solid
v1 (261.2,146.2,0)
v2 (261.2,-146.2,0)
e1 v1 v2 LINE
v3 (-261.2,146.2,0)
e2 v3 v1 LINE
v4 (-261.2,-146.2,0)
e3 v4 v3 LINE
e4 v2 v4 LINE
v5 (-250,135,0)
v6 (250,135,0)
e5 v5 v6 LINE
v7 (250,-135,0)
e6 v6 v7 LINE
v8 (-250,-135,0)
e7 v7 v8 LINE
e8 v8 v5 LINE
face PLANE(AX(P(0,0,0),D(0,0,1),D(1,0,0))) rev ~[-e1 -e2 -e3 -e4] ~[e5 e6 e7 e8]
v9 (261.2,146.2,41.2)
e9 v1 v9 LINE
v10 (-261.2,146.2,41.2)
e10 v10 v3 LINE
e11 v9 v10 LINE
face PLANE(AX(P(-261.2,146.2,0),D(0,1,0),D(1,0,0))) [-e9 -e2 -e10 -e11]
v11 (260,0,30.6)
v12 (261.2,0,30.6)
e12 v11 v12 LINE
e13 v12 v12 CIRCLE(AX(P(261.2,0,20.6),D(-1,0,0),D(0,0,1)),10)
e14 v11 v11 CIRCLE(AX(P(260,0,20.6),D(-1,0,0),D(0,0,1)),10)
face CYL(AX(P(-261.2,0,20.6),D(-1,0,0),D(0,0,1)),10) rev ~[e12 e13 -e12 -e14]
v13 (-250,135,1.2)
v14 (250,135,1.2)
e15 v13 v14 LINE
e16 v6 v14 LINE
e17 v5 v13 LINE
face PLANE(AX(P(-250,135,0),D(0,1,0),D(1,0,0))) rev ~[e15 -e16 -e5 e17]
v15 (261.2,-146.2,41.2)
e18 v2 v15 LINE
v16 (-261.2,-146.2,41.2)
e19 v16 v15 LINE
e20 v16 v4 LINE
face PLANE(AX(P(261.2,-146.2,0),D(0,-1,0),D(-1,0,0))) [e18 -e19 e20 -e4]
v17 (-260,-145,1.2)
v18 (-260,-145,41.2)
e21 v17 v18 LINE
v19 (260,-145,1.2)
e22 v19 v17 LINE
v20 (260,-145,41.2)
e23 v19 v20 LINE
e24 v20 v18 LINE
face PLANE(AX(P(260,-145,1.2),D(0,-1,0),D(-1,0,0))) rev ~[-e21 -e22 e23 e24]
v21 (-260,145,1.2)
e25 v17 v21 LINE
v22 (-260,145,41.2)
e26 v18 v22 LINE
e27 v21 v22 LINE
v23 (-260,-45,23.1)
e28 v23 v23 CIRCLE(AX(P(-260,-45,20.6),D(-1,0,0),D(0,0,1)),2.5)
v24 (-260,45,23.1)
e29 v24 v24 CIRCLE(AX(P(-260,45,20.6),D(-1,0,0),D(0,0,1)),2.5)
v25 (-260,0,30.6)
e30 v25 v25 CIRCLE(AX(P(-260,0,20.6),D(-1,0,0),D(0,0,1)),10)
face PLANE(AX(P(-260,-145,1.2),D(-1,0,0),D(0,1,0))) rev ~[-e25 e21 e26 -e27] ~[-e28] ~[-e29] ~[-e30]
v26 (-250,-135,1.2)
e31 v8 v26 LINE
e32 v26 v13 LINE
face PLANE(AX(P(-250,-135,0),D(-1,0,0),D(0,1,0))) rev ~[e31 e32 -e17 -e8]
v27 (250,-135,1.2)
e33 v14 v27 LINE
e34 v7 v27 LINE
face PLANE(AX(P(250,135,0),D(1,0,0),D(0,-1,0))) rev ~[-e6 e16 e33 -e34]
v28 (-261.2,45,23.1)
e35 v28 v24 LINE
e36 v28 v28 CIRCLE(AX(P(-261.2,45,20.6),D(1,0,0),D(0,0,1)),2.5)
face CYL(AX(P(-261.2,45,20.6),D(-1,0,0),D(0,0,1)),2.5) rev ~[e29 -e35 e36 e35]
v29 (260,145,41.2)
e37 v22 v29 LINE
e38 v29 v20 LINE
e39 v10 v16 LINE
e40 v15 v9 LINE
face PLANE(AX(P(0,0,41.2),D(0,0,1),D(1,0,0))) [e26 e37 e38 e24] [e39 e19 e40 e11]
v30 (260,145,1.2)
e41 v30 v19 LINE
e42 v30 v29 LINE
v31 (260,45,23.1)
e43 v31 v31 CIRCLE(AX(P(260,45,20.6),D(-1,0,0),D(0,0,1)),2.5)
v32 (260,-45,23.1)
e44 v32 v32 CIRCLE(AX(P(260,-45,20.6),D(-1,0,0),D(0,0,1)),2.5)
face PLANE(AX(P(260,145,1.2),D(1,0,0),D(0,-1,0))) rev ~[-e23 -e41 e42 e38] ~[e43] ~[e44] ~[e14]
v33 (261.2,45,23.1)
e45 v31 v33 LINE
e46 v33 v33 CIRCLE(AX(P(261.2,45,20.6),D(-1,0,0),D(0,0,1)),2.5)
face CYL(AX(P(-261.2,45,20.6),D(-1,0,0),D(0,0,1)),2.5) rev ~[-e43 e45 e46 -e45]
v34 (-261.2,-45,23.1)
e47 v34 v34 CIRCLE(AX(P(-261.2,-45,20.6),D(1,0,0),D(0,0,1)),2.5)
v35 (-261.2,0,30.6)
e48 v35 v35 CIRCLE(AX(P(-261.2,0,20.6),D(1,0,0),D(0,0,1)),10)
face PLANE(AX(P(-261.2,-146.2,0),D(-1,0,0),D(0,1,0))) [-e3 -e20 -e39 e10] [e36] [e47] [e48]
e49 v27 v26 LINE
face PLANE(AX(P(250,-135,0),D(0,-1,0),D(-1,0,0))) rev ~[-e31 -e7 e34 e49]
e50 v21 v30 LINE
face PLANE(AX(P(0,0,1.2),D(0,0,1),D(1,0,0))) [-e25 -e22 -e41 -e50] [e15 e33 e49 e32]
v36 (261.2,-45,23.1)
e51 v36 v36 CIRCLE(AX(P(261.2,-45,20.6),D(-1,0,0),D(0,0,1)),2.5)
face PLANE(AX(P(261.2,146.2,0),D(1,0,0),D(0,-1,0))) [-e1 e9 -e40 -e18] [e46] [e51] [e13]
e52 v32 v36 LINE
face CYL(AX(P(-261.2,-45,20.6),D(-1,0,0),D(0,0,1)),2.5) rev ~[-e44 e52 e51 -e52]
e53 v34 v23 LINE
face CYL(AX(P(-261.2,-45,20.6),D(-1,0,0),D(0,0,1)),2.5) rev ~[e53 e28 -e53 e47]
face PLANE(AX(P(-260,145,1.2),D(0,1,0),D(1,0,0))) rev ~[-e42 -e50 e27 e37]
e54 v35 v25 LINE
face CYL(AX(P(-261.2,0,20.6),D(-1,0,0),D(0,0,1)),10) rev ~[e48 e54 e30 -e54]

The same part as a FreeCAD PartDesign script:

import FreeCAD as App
import Part
import Sketcher

doc = App.newDocument("Part")
params = doc.addObject("Spreadsheet::Sheet", "Params")
for row, (alias, value) in enumerate([
    ("sketch1_width", "500 mm"),
    ("sketch1_height", "270 mm"),
    ("sketch1_width2", "522.4 mm"),
    ("sketch1_height2", "292.4 mm"),
    ("pad1_length", "1.2 mm"),
    ("sketch2_width", "520 mm"),
    ("sketch2_height", "290 mm"),
    ("pad2_length", "40 mm"),
    ("sketch3_diameter", "20 mm"),
    ("pocket1_length", "1000 mm"),
    ("sketch4_diameter", "5 mm"),
    ("pocket2_length", "1000 mm"),
], start=1):
    params.set(f"A{row}", alias)
    params.set(f"B{row}", "=" + value)
    params.setAlias(f"B{row}", alias)

body = doc.addObject("PartDesign::Body", "Body")

# Sketch on XY plane
sketch1 = doc.addObject("Sketcher::SketchObject", "Sketch")
body.addObject(sketch1)
sketch1.AttachmentSupport = (doc.XY_Plane, [""])
sketch1.MapMode = "FlatFace"
sketch1.addGeometry([
    Part.LineSegment(App.Vector(-261, -146, 0), App.Vector(261, -146, 0)),  # 0
    Part.LineSegment(App.Vector(261, -146, 0), App.Vector(261, 146, 0)),  # 1
    Part.LineSegment(App.Vector(261, 146, 0), App.Vector(-261, 146, 0)),  # 2
    Part.LineSegment(App.Vector(-261, 146, 0), App.Vector(-261, -146, 0)),  # 3
    Part.LineSegment(App.Vector(250, 135, 0), App.Vector(250, -135, 0)),  # 4
    Part.LineSegment(App.Vector(250, -135, 0), App.Vector(-250, -135, 0)),  # 5
    Part.LineSegment(App.Vector(-250, -135, 0), App.Vector(-250, 135, 0)),  # 6
    Part.LineSegment(App.Vector(-250, 135, 0), App.Vector(250, 135, 0)),  # 7
], False)
sketch1.addConstraint([
    Sketcher.Constraint("Coincident", 0, 2, 1, 1),
    Sketcher.Constraint("Coincident", 1, 2, 2, 1),
    Sketcher.Constraint("Coincident", 2, 2, 3, 1),
    Sketcher.Constraint("Coincident", 3, 2, 0, 1),
    Sketcher.Constraint("Coincident", 4, 2, 5, 1),
    Sketcher.Constraint("Coincident", 5, 2, 6, 1),
    Sketcher.Constraint("Coincident", 6, 2, 7, 1),
    Sketcher.Constraint("Coincident", 7, 2, 4, 1),
    Sketcher.Constraint("Horizontal", 0),
    Sketcher.Constraint("Vertical", 1),
    Sketcher.Constraint("Horizontal", 2),
    Sketcher.Constraint("Vertical", 3),
    Sketcher.Constraint("Vertical", 4),
    Sketcher.Constraint("Horizontal", 5),
    Sketcher.Constraint("Vertical", 6),
    Sketcher.Constraint("Horizontal", 7),
    Sketcher.Constraint("Symmetric", 0, 2, 2, 2, -1, 1),
    Sketcher.Constraint("Symmetric", 4, 2, 6, 2, -1, 1),
    Sketcher.Constraint("DistanceX", 5, 2, 5, 1, 500.0),
    Sketcher.Constraint("DistanceY", 4, 2, 4, 1, 270.0),
    Sketcher.Constraint("DistanceX", 0, 1, 0, 2, 522.4),
    Sketcher.Constraint("DistanceY", 1, 1, 1, 2, 292.4),
])
sketch1.setExpression("Constraints[18]", "Params.sketch1_width")
sketch1.setExpression("Constraints[19]", "Params.sketch1_height")
sketch1.setExpression("Constraints[20]", "Params.sketch1_width2")
sketch1.setExpression("Constraints[21]", "Params.sketch1_height2")
pad1 = doc.addObject("PartDesign::Pad", "Pad")
body.addObject(pad1)
pad1.Profile = sketch1
pad1.setExpression("Length", "Params.pad1_length")

# Sketch on XY plane
sketch2 = doc.addObject("Sketcher::SketchObject", "Sketch001")
body.addObject(sketch2)
sketch2.AttachmentSupport = (doc.XY_Plane, [""])
sketch2.MapMode = "FlatFace"
sketch2.AttachmentOffset = App.Placement(App.Vector(0, 0, 1.2), App.Rotation())
sketch2.addGeometry([
    Part.LineSegment(App.Vector(261, -146, 0), App.Vector(261, 146, 0)),  # 0
    Part.LineSegment(App.Vector(261, 146, 0), App.Vector(-261, 146, 0)),  # 1
    Part.LineSegment(App.Vector(-261, 146, 0), App.Vector(-261, -146, 0)),  # 2
    Part.LineSegment(App.Vector(-261, -146, 0), App.Vector(261, -146, 0)),  # 3
    Part.LineSegment(App.Vector(-260, -145, 0), App.Vector(-260, 145, 0)),  # 4
    Part.LineSegment(App.Vector(-260, 145, 0), App.Vector(260, 145, 0)),  # 5
    Part.LineSegment(App.Vector(260, 145, 0), App.Vector(260, -145, 0)),  # 6
    Part.LineSegment(App.Vector(260, -145, 0), App.Vector(-260, -145, 0)),  # 7
], False)
sketch2.addConstraint([
    Sketcher.Constraint("Coincident", 0, 2, 1, 1),
    Sketcher.Constraint("Coincident", 1, 2, 2, 1),
    Sketcher.Constraint("Coincident", 2, 2, 3, 1),
    Sketcher.Constraint("Coincident", 3, 2, 0, 1),
    Sketcher.Constraint("Coincident", 4, 2, 5, 1),
    Sketcher.Constraint("Coincident", 5, 2, 6, 1),
    Sketcher.Constraint("Coincident", 6, 2, 7, 1),
    Sketcher.Constraint("Coincident", 7, 2, 4, 1),
    Sketcher.Constraint("Vertical", 0),
    Sketcher.Constraint("Horizontal", 1),
    Sketcher.Constraint("Vertical", 2),
    Sketcher.Constraint("Horizontal", 3),
    Sketcher.Constraint("Vertical", 4),
    Sketcher.Constraint("Horizontal", 5),
    Sketcher.Constraint("Vertical", 6),
    Sketcher.Constraint("Horizontal", 7),
    Sketcher.Constraint("Symmetric", 0, 2, 2, 2, -1, 1),
    Sketcher.Constraint("Symmetric", 4, 2, 6, 2, -1, 1),
    Sketcher.Constraint("DistanceX", 1, 2, 4, 2, 1.2),
    Sketcher.Constraint("DistanceY", 4, 2, 1, 2, 1.2),
    Sketcher.Constraint("DistanceX", 5, 1, 5, 2, 520.0),
    Sketcher.Constraint("DistanceY", 4, 1, 4, 2, 290.0),
])
sketch2.setExpression("Constraints[20]", "Params.sketch2_width")
sketch2.setExpression("Constraints[21]", "Params.sketch2_height")
pad2 = doc.addObject("PartDesign::Pad", "Pad001")
body.addObject(pad2)
pad2.Profile = sketch2
pad2.setExpression("Length", "Params.pad2_length")

# Sketch on YZ plane
sketch3 = doc.addObject("Sketcher::SketchObject", "Sketch002")
body.addObject(sketch3)
sketch3.AttachmentSupport = (doc.YZ_Plane, [""])
sketch3.MapMode = "FlatFace"
sketch3.AttachmentOffset = App.Placement(App.Vector(0, 0, -261.2), App.Rotation())
sketch3.addGeometry(Part.Circle(App.Vector(0, 21, 0), App.Vector(0, 0, 1), 10), False)
sketch3.addConstraint([
    Sketcher.Constraint("PointOnObject", 0, 3, -2),
    Sketcher.Constraint("Diameter", 0, 20.0),
    Sketcher.Constraint("DistanceY", -1, 1, 0, 3, 20.6),
])
sketch3.setExpression("Constraints[1]", "Params.sketch3_diameter")
pocket1 = doc.addObject("PartDesign::Pocket", "Pocket")
body.addObject(pocket1)
pocket1.Profile = sketch3
pocket1.setExpression("Length", "Params.pocket1_length")
pocket1.Reversed = True

# Sketch on YZ plane
sketch4 = doc.addObject("Sketcher::SketchObject", "Sketch003")
body.addObject(sketch4)
sketch4.AttachmentSupport = (doc.YZ_Plane, [""])
sketch4.MapMode = "FlatFace"
sketch4.AttachmentOffset = App.Placement(App.Vector(0, 0, -261.2), App.Rotation())
sketch4.addGeometry([
    Part.Circle(App.Vector(45, 20.6, 0), App.Vector(0, 0, 1), 2.5),
    Part.Circle(App.Vector(-45, 20.6, 0), App.Vector(0, 0, 1), 2.5),
], False)
sketch4.addConstraint([
    Sketcher.Constraint("Equal", 0, 1),
    Sketcher.Constraint("Symmetric", 0, 3, 1, 3, -2),
    Sketcher.Constraint("Diameter", 0, 5.0),
    Sketcher.Constraint("DistanceX", 1, 3, 0, 3, 90.0),
    Sketcher.Constraint("DistanceY", -1, 1, 0, 3, 20.6),
])
sketch4.setExpression("Constraints[2]", "Params.sketch4_diameter")
pocket2 = doc.addObject("PartDesign::Pocket", "Pocket001")
body.addObject(pocket2)
pocket2.Profile = sketch4
pocket2.setExpression("Length", "Params.pocket2_length")
pocket2.Reversed = True

doc.recompute()
